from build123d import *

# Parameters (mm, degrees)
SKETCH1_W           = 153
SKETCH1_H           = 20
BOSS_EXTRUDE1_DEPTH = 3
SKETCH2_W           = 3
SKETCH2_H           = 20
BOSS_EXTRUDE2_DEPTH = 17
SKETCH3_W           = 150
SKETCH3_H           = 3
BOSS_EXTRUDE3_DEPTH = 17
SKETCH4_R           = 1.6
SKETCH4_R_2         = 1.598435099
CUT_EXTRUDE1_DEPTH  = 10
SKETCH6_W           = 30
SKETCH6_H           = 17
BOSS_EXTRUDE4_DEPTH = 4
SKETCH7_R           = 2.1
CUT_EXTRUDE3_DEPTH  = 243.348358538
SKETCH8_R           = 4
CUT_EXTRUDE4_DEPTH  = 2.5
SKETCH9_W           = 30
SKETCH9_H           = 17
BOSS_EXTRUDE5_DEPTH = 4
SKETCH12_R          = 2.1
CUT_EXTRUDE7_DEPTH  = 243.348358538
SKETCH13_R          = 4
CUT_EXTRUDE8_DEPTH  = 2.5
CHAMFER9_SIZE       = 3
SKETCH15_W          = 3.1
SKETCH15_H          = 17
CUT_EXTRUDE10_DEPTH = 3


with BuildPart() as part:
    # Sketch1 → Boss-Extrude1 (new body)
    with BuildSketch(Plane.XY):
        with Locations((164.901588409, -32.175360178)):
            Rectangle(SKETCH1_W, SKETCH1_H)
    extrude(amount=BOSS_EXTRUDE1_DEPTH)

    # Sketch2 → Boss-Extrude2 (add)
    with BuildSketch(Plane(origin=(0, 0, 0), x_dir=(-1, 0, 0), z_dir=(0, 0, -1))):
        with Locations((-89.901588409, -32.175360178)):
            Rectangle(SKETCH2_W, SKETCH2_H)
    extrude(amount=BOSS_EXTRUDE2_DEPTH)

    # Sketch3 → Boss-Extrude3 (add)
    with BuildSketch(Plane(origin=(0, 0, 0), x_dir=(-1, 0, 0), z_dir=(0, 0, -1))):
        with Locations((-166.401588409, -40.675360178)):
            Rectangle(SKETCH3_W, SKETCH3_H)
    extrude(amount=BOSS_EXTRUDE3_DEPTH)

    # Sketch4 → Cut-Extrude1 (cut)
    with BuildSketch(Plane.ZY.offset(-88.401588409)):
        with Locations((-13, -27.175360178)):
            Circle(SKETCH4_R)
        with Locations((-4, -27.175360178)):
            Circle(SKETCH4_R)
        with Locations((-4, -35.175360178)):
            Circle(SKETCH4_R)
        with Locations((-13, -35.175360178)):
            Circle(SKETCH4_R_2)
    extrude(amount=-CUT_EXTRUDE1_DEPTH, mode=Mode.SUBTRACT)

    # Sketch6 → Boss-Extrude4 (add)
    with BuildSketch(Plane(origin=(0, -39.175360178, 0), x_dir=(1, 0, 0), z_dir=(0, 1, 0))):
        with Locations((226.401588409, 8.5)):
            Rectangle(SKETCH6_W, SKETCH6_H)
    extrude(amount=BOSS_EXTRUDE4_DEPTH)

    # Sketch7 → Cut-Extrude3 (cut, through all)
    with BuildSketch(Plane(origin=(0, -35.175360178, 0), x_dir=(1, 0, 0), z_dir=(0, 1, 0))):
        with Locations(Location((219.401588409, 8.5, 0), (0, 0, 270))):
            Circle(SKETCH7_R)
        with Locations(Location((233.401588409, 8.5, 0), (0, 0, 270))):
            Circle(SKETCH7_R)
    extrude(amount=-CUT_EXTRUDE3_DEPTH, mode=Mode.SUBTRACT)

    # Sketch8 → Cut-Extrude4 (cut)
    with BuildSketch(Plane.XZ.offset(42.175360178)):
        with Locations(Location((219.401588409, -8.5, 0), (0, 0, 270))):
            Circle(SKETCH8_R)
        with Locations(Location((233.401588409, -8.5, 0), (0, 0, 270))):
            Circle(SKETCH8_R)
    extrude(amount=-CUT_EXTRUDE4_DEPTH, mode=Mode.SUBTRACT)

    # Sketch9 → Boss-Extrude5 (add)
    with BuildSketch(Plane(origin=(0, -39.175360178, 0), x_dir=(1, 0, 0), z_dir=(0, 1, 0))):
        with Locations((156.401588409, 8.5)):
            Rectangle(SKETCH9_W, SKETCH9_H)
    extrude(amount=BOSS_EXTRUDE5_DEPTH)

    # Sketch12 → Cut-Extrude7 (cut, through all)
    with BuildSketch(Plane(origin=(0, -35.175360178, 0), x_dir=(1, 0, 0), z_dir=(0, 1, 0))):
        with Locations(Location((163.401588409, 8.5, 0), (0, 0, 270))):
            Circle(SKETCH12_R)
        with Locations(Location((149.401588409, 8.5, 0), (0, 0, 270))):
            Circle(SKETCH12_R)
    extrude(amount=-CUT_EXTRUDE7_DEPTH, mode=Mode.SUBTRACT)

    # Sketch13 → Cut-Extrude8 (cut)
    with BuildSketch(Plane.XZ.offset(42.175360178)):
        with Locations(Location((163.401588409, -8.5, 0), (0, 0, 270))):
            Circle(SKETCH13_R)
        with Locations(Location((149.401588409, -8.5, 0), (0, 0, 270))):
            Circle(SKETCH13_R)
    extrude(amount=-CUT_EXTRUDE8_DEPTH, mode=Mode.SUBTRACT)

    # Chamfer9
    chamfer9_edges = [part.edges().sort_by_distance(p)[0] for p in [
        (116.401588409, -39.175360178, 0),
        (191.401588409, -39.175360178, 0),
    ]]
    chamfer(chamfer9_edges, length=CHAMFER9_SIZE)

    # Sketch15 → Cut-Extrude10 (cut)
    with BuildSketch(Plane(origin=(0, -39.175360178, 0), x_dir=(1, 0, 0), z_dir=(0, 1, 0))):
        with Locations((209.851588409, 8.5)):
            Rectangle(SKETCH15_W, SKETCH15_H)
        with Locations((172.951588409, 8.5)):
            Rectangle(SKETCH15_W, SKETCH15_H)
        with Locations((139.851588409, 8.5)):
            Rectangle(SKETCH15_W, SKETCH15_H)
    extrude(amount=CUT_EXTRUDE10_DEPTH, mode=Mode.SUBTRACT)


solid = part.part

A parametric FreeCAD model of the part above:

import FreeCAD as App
import Part
import Sketcher


def edges_at(feature, points):
    """Names of the edges that pass closest to the given points."""
    edges = feature.Shape.Edges
    near = lambda p: min(range(len(edges)), key=lambda i: edges[i].distToShape(Part.Vertex(*p))[0])
    return sorted({f"Edge{near(p) + 1}" for p in points})

doc = App.newDocument("Part")
body = doc.addObject("PartDesign::Body", "Body")

# Sketch on XY plane
sketch1 = body.newObject("Sketcher::SketchObject", "Sketch")
sketch1.AttachmentSupport = (doc.getObject("XY_Plane"), [""])
sketch1.MapMode = "FlatFace"
sketch1.addGeometry(Part.LineSegment(App.Vector(88, -22, 0), App.Vector(88, -42, 0)), False)
sketch1.addGeometry(Part.LineSegment(App.Vector(88, -42, 0), App.Vector(241, -42, 0)), False)
sketch1.addGeometry(Part.LineSegment(App.Vector(241, -42, 0), App.Vector(241, -22, 0)), False)
sketch1.addGeometry(Part.LineSegment(App.Vector(241, -22, 0), App.Vector(88, -22, 0)), False)
sketch1.addConstraint(Sketcher.Constraint("Coincident", 0, 2, 1, 1))
sketch1.addConstraint(Sketcher.Constraint("Coincident", 1, 2, 2, 1))
sketch1.addConstraint(Sketcher.Constraint("Coincident", 2, 2, 3, 1))
sketch1.addConstraint(Sketcher.Constraint("Coincident", 3, 2, 0, 1))
sketch1.addConstraint(Sketcher.Constraint("Vertical", 0))
sketch1.addConstraint(Sketcher.Constraint("Horizontal", 1))
sketch1.addConstraint(Sketcher.Constraint("Vertical", 2))
sketch1.addConstraint(Sketcher.Constraint("Horizontal", 3))
sketch1.addConstraint(Sketcher.Constraint("DistanceX", 1, 1, 1, 2, 153.0))
sketch1.addConstraint(Sketcher.Constraint("DistanceY", 0, 2, 0, 1, 20.0))
sketch1.addConstraint(Sketcher.Constraint("DistanceX", -1, 1, 0, 2, 88.401588))
sketch1.addConstraint(Sketcher.Constraint("DistanceY", 0, 2, -1, 1, 42.17536))
pad1 = body.newObject("PartDesign::Pad", "Pad")
pad1.Profile = sketch1
pad1.Length = 3

# Sketch on XY plane
sketch2 = body.newObject("Sketcher::SketchObject", "Sketch001")
sketch2.AttachmentSupport = (doc.getObject("XY_Plane"), [""])
sketch2.MapMode = "FlatFace"
sketch2.addGeometry(Part.LineSegment(App.Vector(91.4, -22.2, 0), App.Vector(91.4, -42.2, 0)), False)
sketch2.addGeometry(Part.LineSegment(App.Vector(91.4, -42.2, 0), App.Vector(88.4, -42.2, 0)), False)
sketch2.addGeometry(Part.LineSegment(App.Vector(88.4, -42.2, 0), App.Vector(88.4, -22.2, 0)), False)
sketch2.addGeometry(Part.LineSegment(App.Vector(88.4, -22.2, 0), App.Vector(91.4, -22.2, 0)), False)
sketch2.addConstraint(Sketcher.Constraint("Coincident", 0, 2, 1, 1))
sketch2.addConstraint(Sketcher.Constraint("Coincident", 1, 2, 2, 1))
sketch2.addConstraint(Sketcher.Constraint("Coincident", 2, 2, 3, 1))
sketch2.addConstraint(Sketcher.Constraint("Coincident", 3, 2, 0, 1))
sketch2.addConstraint(Sketcher.Constraint("Vertical", 0))
sketch2.addConstraint(Sketcher.Constraint("Horizontal", 1))
sketch2.addConstraint(Sketcher.Constraint("Vertical", 2))
sketch2.addConstraint(Sketcher.Constraint("Horizontal", 3))
sketch2.addConstraint(Sketcher.Constraint("DistanceX", 1, 2, 1, 1, 3.0))
sketch2.addConstraint(Sketcher.Constraint("DistanceY", 0, 2, 0, 1, 20.0))
sketch2.addConstraint(Sketcher.Constraint("DistanceX", -1, 1, 0, 2, 91.401588))
sketch2.addConstraint(Sketcher.Constraint("DistanceY", 0, 2, -1, 1, 42.17536))
pad2 = body.newObject("PartDesign::Pad", "Pad001")
pad2.Profile = sketch2
pad2.Length = 17
pad2.Reversed = True

# Sketch on XY plane
sketch3 = body.newObject("Sketcher::SketchObject", "Sketch002")
sketch3.AttachmentSupport = (doc.getObject("XY_Plane"), [""])
sketch3.MapMode = "FlatFace"
sketch3.addGeometry(Part.LineSegment(App.Vector(241.4, -39.2, 0), App.Vector(241.4, -42.2, 0)), False)
sketch3.addGeometry(Part.LineSegment(App.Vector(241.4, -42.2, 0), App.Vector(91.4, -42.2, 0)), False)
sketch3.addGeometry(Part.LineSegment(App.Vector(91.4, -42.2, 0), App.Vector(91.4, -39.2, 0)), False)
sketch3.addGeometry(Part.LineSegment(App.Vector(91.4, -39.2, 0), App.Vector(241.4, -39.2, 0)), False)
sketch3.addConstraint(Sketcher.Constraint("Coincident", 0, 2, 1, 1))
sketch3.addConstraint(Sketcher.Constraint("Coincident", 1, 2, 2, 1))
sketch3.addConstraint(Sketcher.Constraint("Coincident", 2, 2, 3, 1))
sketch3.addConstraint(Sketcher.Constraint("Coincident", 3, 2, 0, 1))
sketch3.addConstraint(Sketcher.Constraint("Vertical", 0))
sketch3.addConstraint(Sketcher.Constraint("Horizontal", 1))
sketch3.addConstraint(Sketcher.Constraint("Vertical", 2))
sketch3.addConstraint(Sketcher.Constraint("Horizontal", 3))
sketch3.addConstraint(Sketcher.Constraint("DistanceX", 1, 2, 1, 1, 150.0))
sketch3.addConstraint(Sketcher.Constraint("DistanceY", 0, 2, 0, 1, 3.0))
sketch3.addConstraint(Sketcher.Constraint("DistanceX", -1, 1, 0, 2, 241.401588))
sketch3.addConstraint(Sketcher.Constraint("DistanceY", 0, 2, -1, 1, 42.17536))
pad3 = body.newObject("PartDesign::Pad", "Pad002")
pad3.Profile = sketch3
pad3.Length = 17
pad3.Reversed = True

# Sketch on YZ plane
sketch4 = body.newObject("Sketcher::SketchObject", "Sketch003")
sketch4.AttachmentSupport = (doc.getObject("YZ_Plane"), [""])
sketch4.MapMode = "FlatFace"
sketch4.AttachmentOffset = App.Placement(App.Vector(0, 0, 88.401588), App.Rotation())
sketch4.addGeometry(Part.Circle(App.Vector(-27.2, -13, 0), App.Vector(0, 0, 1), 1.6), False)
sketch4.addGeometry(Part.Circle(App.Vector(-27.2, -4, 0), App.Vector(0, 0, 1), 1.6), False)
sketch4.addGeometry(Part.Circle(App.Vector(-35.2, -4, 0), App.Vector(0, 0, 1), 1.6), False)
sketch4.addGeometry(Part.Circle(App.Vector(-35.2, -13, 0), App.Vector(0, 0, 1), 1.6), False)
sketch4.addConstraint(Sketcher.Constraint("Equal", 0, 1))
sketch4.addConstraint(Sketcher.Constraint("Equal", 1, 2))
sketch4.addConstraint(Sketcher.Constraint("Horizontal", 1, 3, 2, 3))
sketch4.addConstraint(Sketcher.Constraint("Horizontal", 0, 3, 3, 3))
sketch4.addConstraint(Sketcher.Constraint("Vertical", 0, 3, 1, 3))
sketch4.addConstraint(Sketcher.Constraint("Vertical", 2, 3, 3, 3))
sketch4.addConstraint(Sketcher.Constraint("Diameter", 0, 3.2))
sketch4.addConstraint(Sketcher.Constraint("DistanceY", 0, 3, -1, 1, 13.0))
sketch4.addConstraint(Sketcher.Constraint("DistanceY", 1, 3, -1, 1, 4.0))
sketch4.addConstraint(Sketcher.Constraint("DistanceX", 2, 3, 1, 3, 8.0))
sketch4.addConstraint(Sketcher.Constraint("Diameter", 3, 3.19687))
sketch4.addConstraint(Sketcher.Constraint("DistanceX", 0, 3, -1, 1, 27.17536))
pocket1 = body.newObject("PartDesign::Pocket", "Pocket")
pocket1.Profile = sketch4
pocket1.Length = 10
pocket1.Reversed = True

# Sketch on XZ plane
sketch5 = body.newObject("Sketcher::SketchObject", "Sketch004")
sketch5.AttachmentSupport = (doc.getObject("XZ_Plane"), [""])
sketch5.MapMode = "FlatFace"
sketch5.AttachmentOffset = App.Placement(App.Vector(0, 0, 39.17536), App.Rotation())
sketch5.addGeometry(Part.LineSegment(App.Vector(211, -17, 0), App.Vector(211, 0, 0)), False)
sketch5.addGeometry(Part.LineSegment(App.Vector(211, 0, 0), App.Vector(241, 0, 0)), False)
sketch5.addGeometry(Part.LineSegment(App.Vector(241, 0, 0), App.Vector(241, -17, 0)), False)
sketch5.addGeometry(Part.LineSegment(App.Vector(241, -17, 0), App.Vector(211, -17, 0)), False)
sketch5.addConstraint(Sketcher.Constraint("Coincident", 0, 2, 1, 1))
sketch5.addConstraint(Sketcher.Constraint("Coincident", 1, 2, 2, 1))
sketch5.addConstraint(Sketcher.Constraint("Coincident", 2, 2, 3, 1))
sketch5.addConstraint(Sketcher.Constraint("Coincident", 3, 2, 0, 1))
sketch5.addConstraint(Sketcher.Constraint("Vertical", 0))
sketch5.addConstraint(Sketcher.Constraint("Horizontal", 1))
sketch5.addConstraint(Sketcher.Constraint("Vertical", 2))
sketch5.addConstraint(Sketcher.Constraint("Horizontal", 3))
sketch5.addConstraint(Sketcher.Constraint("PointOnObject", 0, 2, -1))
sketch5.addConstraint(Sketcher.Constraint("DistanceX", 1, 1, 1, 2, 30.0))
sketch5.addConstraint(Sketcher.Constraint("DistanceY", 0, 1, 0, 2, 17.0))
sketch5.addConstraint(Sketcher.Constraint("DistanceX", -1, 1, 0, 2, 211.401588))
pad4 = body.newObject("PartDesign::Pad", "Pad003")
pad4.Profile = sketch5
pad4.Length = 4
pad4.Reversed = True

# Sketch on XZ plane
sketch6 = body.newObject("Sketcher::SketchObject", "Sketch005")
sketch6.AttachmentSupport = (doc.getObject("XZ_Plane"), [""])
sketch6.MapMode = "FlatFace"
sketch6.AttachmentOffset = App.Placement(App.Vector(0, 0, 35.17536), App.Rotation())
sketch6.addGeometry(Part.Circle(App.Vector(219.4, -8.5, 0), App.Vector(0, 0, 1), 2.1), False)
sketch6.addGeometry(Part.Circle(App.Vector(233.4, -8.5, 0), App.Vector(0, 0, 1), 2.1), False)
sketch6.addConstraint(Sketcher.Constraint("Equal", 0, 1))
sketch6.addConstraint(Sketcher.Constraint("Horizontal", 0, 3, 1, 3))
sketch6.addConstraint(Sketcher.Constraint("Diameter", 0, 4.2))
sketch6.addConstraint(Sketcher.Constraint("DistanceX", 0, 3, 1, 3, 14.0))
sketch6.addConstraint(Sketcher.Constraint("DistanceY", 0, 3, -1, 1, 8.5))
sketch6.addConstraint(Sketcher.Constraint("DistanceX", -1, 1, 0, 3, 219.401588))
pocket2 = body.newObject("PartDesign::Pocket", "Pocket001")
pocket2.Profile = sketch6
pocket2.Type = "ThroughAll"
pocket2.Reversed = True

# Sketch on XZ plane
sketch7 = body.newObject("Sketcher::SketchObject", "Sketch006")
sketch7.AttachmentSupport = (doc.getObject("XZ_Plane"), [""])
sketch7.MapMode = "FlatFace"
sketch7.AttachmentOffset = App.Placement(App.Vector(0, 0, 42.17536), App.Rotation())
sketch7.addGeometry(Part.Circle(App.Vector(219.4, -8.5, 0), App.Vector(0, 0, 1), 4), False)
sketch7.addGeometry(Part.Circle(App.Vector(233.4, -8.5, 0), App.Vector(0, 0, 1), 4), False)
sketch7.addConstraint(Sketcher.Constraint("Equal", 0, 1))
sketch7.addConstraint(Sketcher.Constraint("Horizontal", 0, 3, 1, 3))
sketch7.addConstraint(Sketcher.Constraint("Diameter", 0, 8.0))
sketch7.addConstraint(Sketcher.Constraint("DistanceX", 0, 3, 1, 3, 14.0))
sketch7.addConstraint(Sketcher.Constraint("DistanceY", 0, 3, -1, 1, 8.5))
sketch7.addConstraint(Sketcher.Constraint("DistanceX", -1, 1, 0, 3, 219.401588))
pocket3 = body.newObject("PartDesign::Pocket", "Pocket002")
pocket3.Profile = sketch7
pocket3.Length = 2.5

# Sketch on XZ plane
sketch8 = body.newObject("Sketcher::SketchObject", "Sketch007")
sketch8.AttachmentSupport = (doc.getObject("XZ_Plane"), [""])
sketch8.MapMode = "FlatFace"
sketch8.AttachmentOffset = App.Placement(App.Vector(0, 0, 39.17536), App.Rotation())
sketch8.addGeometry(Part.LineSegment(App.Vector(141, -17, 0), App.Vector(141, 0, 0)), False)
sketch8.addGeometry(Part.LineSegment(App.Vector(141, 0, 0), App.Vector(171, 0, 0)), False)
sketch8.addGeometry(Part.LineSegment(App.Vector(171, 0, 0), App.Vector(171, -17, 0)), False)
sketch8.addGeometry(Part.LineSegment(App.Vector(171, -17, 0), App.Vector(141, -17, 0)), False)
sketch8.addConstraint(Sketcher.Constraint("Coincident", 0, 2, 1, 1))
sketch8.addConstraint(Sketcher.Constraint("Coincident", 1, 2, 2, 1))
sketch8.addConstraint(Sketcher.Constraint("Coincident", 2, 2, 3, 1))
sketch8.addConstraint(Sketcher.Constraint("Coincident", 3, 2, 0, 1))
sketch8.addConstraint(Sketcher.Constraint("Vertical", 0))
sketch8.addConstraint(Sketcher.Constraint("Horizontal", 1))
sketch8.addConstraint(Sketcher.Constraint("Vertical", 2))
sketch8.addConstraint(Sketcher.Constraint("Horizontal", 3))
sketch8.addConstraint(Sketcher.Constraint("PointOnObject", 0, 2, -1))
sketch8.addConstraint(Sketcher.Constraint("DistanceX", 1, 1, 1, 2, 30.0))
sketch8.addConstraint(Sketcher.Constraint("DistanceY", 0, 1, 0, 2, 17.0))
sketch8.addConstraint(Sketcher.Constraint("DistanceX", -1, 1, 0, 2, 141.401588))
pad5 = body.newObject("PartDesign::Pad", "Pad004")
pad5.Profile = sketch8
pad5.Length = 4
pad5.Reversed = True

# Sketch on XZ plane
sketch9 = body.newObject("Sketcher::SketchObject", "Sketch008")
sketch9.AttachmentSupport = (doc.getObject("XZ_Plane"), [""])
sketch9.MapMode = "FlatFace"
sketch9.AttachmentOffset = App.Placement(App.Vector(0, 0, 35.17536), App.Rotation())
sketch9.addGeometry(Part.Circle(App.Vector(163.4, -8.5, 0), App.Vector(0, 0, 1), 2.1), False)
sketch9.addGeometry(Part.Circle(App.Vector(149.4, -8.5, 0), App.Vector(0, 0, 1), 2.1), False)
sketch9.addConstraint(Sketcher.Constraint("Equal", 0, 1))
sketch9.addConstraint(Sketcher.Constraint("Horizontal", 0, 3, 1, 3))
sketch9.addConstraint(Sketcher.Constraint("Diameter", 0, 4.2))
sketch9.addConstraint(Sketcher.Constraint("DistanceX", 1, 3, 0, 3, 14.0))
sketch9.addConstraint(Sketcher.Constraint("DistanceY", 0, 3, -1, 1, 8.5))
sketch9.addConstraint(Sketcher.Constraint("DistanceX", -1, 1, 0, 3, 163.401588))
pocket4 = body.newObject("PartDesign::Pocket", "Pocket003")
pocket4.Profile = sketch9
pocket4.Type = "ThroughAll"
pocket4.Reversed = True

# Sketch on XZ plane
sketch10 = body.newObject("Sketcher::SketchObject", "Sketch009")
sketch10.AttachmentSupport = (doc.getObject("XZ_Plane"), [""])
sketch10.MapMode = "FlatFace"
sketch10.AttachmentOffset = App.Placement(App.Vector(0, 0, 42.17536), App.Rotation())
sketch10.addGeometry(Part.Circle(App.Vector(163.4, -8.5, 0), App.Vector(0, 0, 1), 4), False)
sketch10.addGeometry(Part.Circle(App.Vector(149.4, -8.5, 0), App.Vector(0, 0, 1), 4), False)
sketch10.addConstraint(Sketcher.Constraint("Equal", 0, 1))
sketch10.addConstraint(Sketcher.Constraint("Horizontal", 0, 3, 1, 3))
sketch10.addConstraint(Sketcher.Constraint("Diameter", 0, 8.0))
sketch10.addConstraint(Sketcher.Constraint("DistanceX", 1, 3, 0, 3, 14.0))
sketch10.addConstraint(Sketcher.Constraint("DistanceY", 0, 3, -1, 1, 8.5))
sketch10.addConstraint(Sketcher.Constraint("DistanceX", -1, 1, 0, 3, 163.401588))
pocket5 = body.newObject("PartDesign::Pocket", "Pocket004")
pocket5.Profile = sketch10
pocket5.Length = 2.5
doc.recompute()

chamfer = body.newObject("PartDesign::Chamfer", "Chamfer")
chamfer.Base = (pocket5, edges_at(pocket5, [(116.402, -39.175, 0), (191.402, -39.175, 0)]))
chamfer.Size = 3

# Sketch on XZ plane
sketch11 = body.newObject("Sketcher::SketchObject", "Sketch010")
sketch11.AttachmentSupport = (doc.getObject("XZ_Plane"), [""])
sketch11.MapMode = "FlatFace"
sketch11.AttachmentOffset = App.Placement(App.Vector(0, 0, 39.17536), App.Rotation())
sketch11.addGeometry(Part.LineSegment(App.Vector(208.3, -17, 0), App.Vector(208.3, 0, 0)), False)
sketch11.addGeometry(Part.LineSegment(App.Vector(208.3, 0, 0), App.Vector(211.4, 0, 0)), False)
sketch11.addGeometry(Part.LineSegment(App.Vector(211.4, 0, 0), App.Vector(211.4, -17, 0)), False)
sketch11.addGeometry(Part.LineSegment(App.Vector(211.4, -17, 0), App.Vector(208.3, -17, 0)), False)
sketch11.addGeometry(Part.LineSegment(App.Vector(171.4, -17, 0), App.Vector(171.4, 0, 0)), False)
sketch11.addGeometry(Part.LineSegment(App.Vector(171.4, 0, 0), App.Vector(174.5, 0, 0)), False)
sketch11.addGeometry(Part.LineSegment(App.Vector(174.5, 0, 0), App.Vector(174.5, -17, 0)), False)
sketch11.addGeometry(Part.LineSegment(App.Vector(174.5, -17, 0), App.Vector(171.4, -17, 0)), False)
sketch11.addGeometry(Part.LineSegment(App.Vector(138.3, -17, 0), App.Vector(138.3, 0, 0)), False)
sketch11.addGeometry(Part.LineSegment(App.Vector(138.3, 0, 0), App.Vector(141.4, 0, 0)), False)
sketch11.addGeometry(Part.LineSegment(App.Vector(141.4, 0, 0), App.Vector(141.4, -17, 0)), False)
sketch11.addGeometry(Part.LineSegment(App.Vector(141.4, -17, 0), App.Vector(138.3, -17, 0)), False)
sketch11.addConstraint(Sketcher.Constraint("Coincident", 0, 2, 1, 1))
sketch11.addConstraint(Sketcher.Constraint("Coincident", 1, 2, 2, 1))
sketch11.addConstraint(Sketcher.Constraint("Coincident", 2, 2, 3, 1))
sketch11.addConstraint(Sketcher.Constraint("Coincident", 3, 2, 0, 1))
sketch11.addConstraint(Sketcher.Constraint("Coincident", 4, 2, 5, 1))
sketch11.addConstraint(Sketcher.Constraint("Coincident", 5, 2, 6, 1))
sketch11.addConstraint(Sketcher.Constraint("Coincident", 6, 2, 7, 1))
sketch11.addConstraint(Sketcher.Constraint("Coincident", 7, 2, 4, 1))
sketch11.addConstraint(Sketcher.Constraint("Coincident", 8, 2, 9, 1))
sketch11.addConstraint(Sketcher.Constraint("Coincident", 9, 2, 10, 1))
sketch11.addConstraint(Sketcher.Constraint("Coincident", 10, 2, 11, 1))
sketch11.addConstraint(Sketcher.Constraint("Coincident", 11, 2, 8, 1))
sketch11.addConstraint(Sketcher.Constraint("Vertical", 0))
sketch11.addConstraint(Sketcher.Constraint("Horizontal", 1))
sketch11.addConstraint(Sketcher.Constraint("Vertical", 2))
sketch11.addConstraint(Sketcher.Constraint("Horizontal", 3))
sketch11.addConstraint(Sketcher.Constraint("Vertical", 4))
sketch11.addConstraint(Sketcher.Constraint("Horizontal", 5))
sketch11.addConstraint(Sketcher.Constraint("Vertical", 6))
sketch11.addConstraint(Sketcher.Constraint("Horizontal", 7))
sketch11.addConstraint(Sketcher.Constraint("Vertical", 8))
sketch11.addConstraint(Sketcher.Constraint("Horizontal", 9))
sketch11.addConstraint(Sketcher.Constraint("Vertical", 10))
sketch11.addConstraint(Sketcher.Constraint("Horizontal", 11))
sketch11.addConstraint(Sketcher.Constraint("PointOnObject", 0, 2, -1))
sketch11.addConstraint(Sketcher.Constraint("PointOnObject", 4, 2, -1))
sketch11.addConstraint(Sketcher.Constraint("PointOnObject", 8, 2, -1))
sketch11.addConstraint(Sketcher.Constraint("Horizontal", 3, 2, 6, 2))
sketch11.addConstraint(Sketcher.Constraint("Horizontal", 7, 2, 10, 2))
sketch11.addConstraint(Sketcher.Constraint("Equal", 3, 5))
sketch11.addConstraint(Sketcher.Constraint("Equal", 7, 9))
sketch11.addConstraint(Sketcher.Constraint("DistanceY", 0, 1, 0, 2, 17.0))
sketch11.addConstraint(Sketcher.Constraint("DistanceX", 1, 1, 1, 2, 3.1))
sketch11.addConstraint(Sketcher.Constraint("DistanceX", 4, 2, 1, 2, 40.0))
sketch11.addConstraint(Sketcher.Constraint("DistanceX", 8, 2, 0, 2, 70.0))
sketch11.addConstraint(Sketcher.Constraint("DistanceX", -1, 1, 0, 2, 208.301588))
pocket6 = body.newObject("PartDesign::Pocket", "Pocket005")
pocket6.Profile = sketch11
pocket6.Length = 3

doc.recompute()
